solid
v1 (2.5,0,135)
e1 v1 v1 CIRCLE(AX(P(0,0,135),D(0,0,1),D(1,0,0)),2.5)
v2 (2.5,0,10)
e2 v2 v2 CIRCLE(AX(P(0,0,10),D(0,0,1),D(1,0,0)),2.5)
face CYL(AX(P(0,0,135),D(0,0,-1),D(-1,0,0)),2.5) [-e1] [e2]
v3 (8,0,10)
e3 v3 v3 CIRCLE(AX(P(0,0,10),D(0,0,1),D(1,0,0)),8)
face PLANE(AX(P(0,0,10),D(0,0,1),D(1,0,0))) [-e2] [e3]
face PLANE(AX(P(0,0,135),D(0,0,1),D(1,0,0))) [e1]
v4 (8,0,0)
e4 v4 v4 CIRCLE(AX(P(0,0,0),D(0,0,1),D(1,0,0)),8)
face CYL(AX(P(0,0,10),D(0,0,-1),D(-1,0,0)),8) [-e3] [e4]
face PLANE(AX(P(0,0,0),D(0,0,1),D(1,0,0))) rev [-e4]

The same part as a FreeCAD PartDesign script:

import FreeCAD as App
import Part
import Sketcher
from FreeCAD import Vector
Q = App.Units.Quantity

doc = App.newDocument("Part")
body = doc.addObject("PartDesign::Body", "Body")

sketch1 = body.newObject("Sketcher::SketchObject", "Sketch")
sketch1.AttachmentSupport = (doc.getObject("XY_Plane"), [""])
sketch1.MapMode = "FlatFace"
sketch1.addGeometry(Part.Circle(Vector(0, 0, 0), Vector(0, 0, 1), 8), False)
sketch1.addConstraint([
    Sketcher.Constraint("Coincident", 0, 3, -1, 1),
    Sketcher.Constraint("Diameter", 0, Q("16 mm")),
])
pad1 = body.newObject("PartDesign::Pad", "Pad")
pad1.Profile = sketch1
pad1.Length = 10

sketch2 = body.newObject("Sketcher::SketchObject", "Sketch001")
sketch2.AttachmentSupport = (doc.getObject("XY_Plane"), [""])
sketch2.MapMode = "FlatFace"
sketch2.AttachmentOffset = App.Placement(Vector(0, 0, 10), App.Rotation())
sketch2.addGeometry(Part.Circle(Vector(0, 0, 0), Vector(0, 0, 1), 2.5), False)
sketch2.addConstraint([
    Sketcher.Constraint("Coincident", 0, 3, -1, 1),
    Sketcher.Constraint("Diameter", 0, Q("5 mm")),
])
pad2 = body.newObject("PartDesign::Pad", "Pad001")
pad2.Profile = sketch2
pad2.Length = 125

doc.recompute()
